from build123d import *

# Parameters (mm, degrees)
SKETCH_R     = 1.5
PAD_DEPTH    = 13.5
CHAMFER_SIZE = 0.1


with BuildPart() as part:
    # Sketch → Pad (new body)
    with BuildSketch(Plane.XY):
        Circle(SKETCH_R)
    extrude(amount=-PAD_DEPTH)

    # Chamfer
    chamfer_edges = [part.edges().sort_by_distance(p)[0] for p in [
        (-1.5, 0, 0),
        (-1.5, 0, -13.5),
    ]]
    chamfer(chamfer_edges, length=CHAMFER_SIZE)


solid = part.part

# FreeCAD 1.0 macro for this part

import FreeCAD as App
import Part
import Sketcher
from FreeCAD import Vector
Q = App.Units.Quantity


def edges_at(feature, points):
    """Names of the edges that pass closest to the given points."""
    edges = feature.Shape.Edges
    near = lambda p: min(range(len(edges)), key=lambda i: edges[i].distToShape(Part.Vertex(*p))[0])
    return sorted({f"Edge{near(p) + 1}" for p in points})

doc = App.newDocument("Part")
body = doc.addObject("PartDesign::Body", "Body")

sketch1 = body.newObject("Sketcher::SketchObject", "Sketch")
sketch1.AttachmentSupport = (doc.getObject("XY_Plane"), [""])
sketch1.MapMode = "FlatFace"
sketch1.addGeometry(Part.Circle(Vector(0, 0, 0), Vector(0, 0, 1), 1.5), False)
sketch1.addConstraint(Sketcher.Constraint("Coincident", 0, 3, -1, 1))
sketch1.addConstraint(Sketcher.Constraint("Diameter", 0, Q("3 mm")))
pad1 = body.newObject("PartDesign::Pad", "Pad")
pad1.Profile = sketch1
pad1.Length = 13.5
pad1.Reversed = True
doc.recompute()

chamfer = body.newObject("PartDesign::Chamfer", "Chamfer")
chamfer.Base = (pad1, edges_at(pad1, [(-1.5, 0, 0), (-1.5, 0, -13.5)]))
chamfer.Size = 0.1

doc.recompute()
